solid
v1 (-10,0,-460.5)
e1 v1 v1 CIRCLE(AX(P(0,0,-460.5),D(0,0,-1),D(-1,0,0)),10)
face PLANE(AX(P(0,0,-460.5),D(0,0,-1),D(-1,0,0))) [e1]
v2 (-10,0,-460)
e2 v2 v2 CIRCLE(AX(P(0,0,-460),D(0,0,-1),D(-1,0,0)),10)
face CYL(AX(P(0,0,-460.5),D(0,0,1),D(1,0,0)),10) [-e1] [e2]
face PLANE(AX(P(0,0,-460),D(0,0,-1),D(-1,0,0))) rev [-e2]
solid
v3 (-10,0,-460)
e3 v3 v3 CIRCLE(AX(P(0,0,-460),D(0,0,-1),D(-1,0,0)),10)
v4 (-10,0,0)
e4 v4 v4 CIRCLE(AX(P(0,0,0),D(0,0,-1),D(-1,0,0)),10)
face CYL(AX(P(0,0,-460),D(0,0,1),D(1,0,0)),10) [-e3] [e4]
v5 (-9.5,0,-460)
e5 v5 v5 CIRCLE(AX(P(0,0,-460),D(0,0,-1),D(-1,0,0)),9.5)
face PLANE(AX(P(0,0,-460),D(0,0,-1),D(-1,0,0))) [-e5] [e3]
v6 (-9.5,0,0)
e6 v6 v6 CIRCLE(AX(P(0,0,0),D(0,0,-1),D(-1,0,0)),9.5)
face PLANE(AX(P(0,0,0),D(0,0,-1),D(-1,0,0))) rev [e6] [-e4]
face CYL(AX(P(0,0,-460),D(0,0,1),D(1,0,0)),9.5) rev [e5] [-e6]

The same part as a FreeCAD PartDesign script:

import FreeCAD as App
import Part
import Sketcher

V = App.Vector
Q = App.Units.Quantity

doc = App.newDocument("Part")
params = doc.addObject("Spreadsheet::Sheet", "Params")
for row, (alias, value) in enumerate([
    ("sketch1_diameter", "20 mm"),
    ("sketch1_diameter2", "19 mm"),
    ("pad1_length", "460 mm"),
    ("sketch2_diameter", "20 mm"),
    ("pad2_length", "0.5 mm"),
], start=1):
    params.set(f"A{row}", alias)
    params.set(f"B{row}", "=" + value)
    params.setAlias(f"B{row}", alias)

body = doc.addObject("PartDesign::Body", "Body")

sketch1 = body.newObject("Sketcher::SketchObject", "Sketch")
sketch1.AttachmentSupport = (doc.getObject("XY_Plane"), [""])
sketch1.MapMode = "FlatFace"
sketch1.addGeometry([
    Part.Circle(V(0, 0, 0), V(0, 0, 1), 10),
    Part.Circle(V(0, 0, 0), V(0, 0, 1), 10),
], False)
sketch1.addConstraint([
    Sketcher.Constraint("Coincident", 0, 3, -1, 1),
    Sketcher.Constraint("Coincident", 1, 3, -1, 1),
    Sketcher.Constraint("Diameter", 0, Q("20 mm")),
    Sketcher.Constraint("Diameter", 1, Q("19 mm")),
])
sketch1.setExpression("Constraints[2]", "Params.sketch1_diameter")
sketch1.setExpression("Constraints[3]", "Params.sketch1_diameter2")
pad1 = body.newObject("PartDesign::Pad", "Pad")
pad1.Profile = sketch1
pad1.setExpression("Length", "Params.pad1_length")
pad1.Reversed = True
body2 = doc.addObject("PartDesign::Body", "Body001")

sketch2 = body2.newObject("Sketcher::SketchObject", "Sketch001")
sketch2.AttachmentSupport = (doc.getObject("XY_Plane001"), [""])
sketch2.MapMode = "FlatFace"
sketch2.AttachmentOffset = App.Placement(V(0, 0, -460), App.Rotation())
sketch2.addGeometry(Part.Circle(V(0, 0, 0), V(0, 0, 1), 10), False)
sketch2.addConstraint([
    Sketcher.Constraint("Coincident", 0, 3, -1, 1),
    Sketcher.Constraint("Diameter", 0, Q("20 mm")),
])
sketch2.setExpression("Constraints[1]", "Params.sketch2_diameter")
pad2 = body2.newObject("PartDesign::Pad", "Pad001")
pad2.Profile = sketch2
pad2.setExpression("Length", "Params.pad2_length")
pad2.Reversed = True

doc.recompute()
